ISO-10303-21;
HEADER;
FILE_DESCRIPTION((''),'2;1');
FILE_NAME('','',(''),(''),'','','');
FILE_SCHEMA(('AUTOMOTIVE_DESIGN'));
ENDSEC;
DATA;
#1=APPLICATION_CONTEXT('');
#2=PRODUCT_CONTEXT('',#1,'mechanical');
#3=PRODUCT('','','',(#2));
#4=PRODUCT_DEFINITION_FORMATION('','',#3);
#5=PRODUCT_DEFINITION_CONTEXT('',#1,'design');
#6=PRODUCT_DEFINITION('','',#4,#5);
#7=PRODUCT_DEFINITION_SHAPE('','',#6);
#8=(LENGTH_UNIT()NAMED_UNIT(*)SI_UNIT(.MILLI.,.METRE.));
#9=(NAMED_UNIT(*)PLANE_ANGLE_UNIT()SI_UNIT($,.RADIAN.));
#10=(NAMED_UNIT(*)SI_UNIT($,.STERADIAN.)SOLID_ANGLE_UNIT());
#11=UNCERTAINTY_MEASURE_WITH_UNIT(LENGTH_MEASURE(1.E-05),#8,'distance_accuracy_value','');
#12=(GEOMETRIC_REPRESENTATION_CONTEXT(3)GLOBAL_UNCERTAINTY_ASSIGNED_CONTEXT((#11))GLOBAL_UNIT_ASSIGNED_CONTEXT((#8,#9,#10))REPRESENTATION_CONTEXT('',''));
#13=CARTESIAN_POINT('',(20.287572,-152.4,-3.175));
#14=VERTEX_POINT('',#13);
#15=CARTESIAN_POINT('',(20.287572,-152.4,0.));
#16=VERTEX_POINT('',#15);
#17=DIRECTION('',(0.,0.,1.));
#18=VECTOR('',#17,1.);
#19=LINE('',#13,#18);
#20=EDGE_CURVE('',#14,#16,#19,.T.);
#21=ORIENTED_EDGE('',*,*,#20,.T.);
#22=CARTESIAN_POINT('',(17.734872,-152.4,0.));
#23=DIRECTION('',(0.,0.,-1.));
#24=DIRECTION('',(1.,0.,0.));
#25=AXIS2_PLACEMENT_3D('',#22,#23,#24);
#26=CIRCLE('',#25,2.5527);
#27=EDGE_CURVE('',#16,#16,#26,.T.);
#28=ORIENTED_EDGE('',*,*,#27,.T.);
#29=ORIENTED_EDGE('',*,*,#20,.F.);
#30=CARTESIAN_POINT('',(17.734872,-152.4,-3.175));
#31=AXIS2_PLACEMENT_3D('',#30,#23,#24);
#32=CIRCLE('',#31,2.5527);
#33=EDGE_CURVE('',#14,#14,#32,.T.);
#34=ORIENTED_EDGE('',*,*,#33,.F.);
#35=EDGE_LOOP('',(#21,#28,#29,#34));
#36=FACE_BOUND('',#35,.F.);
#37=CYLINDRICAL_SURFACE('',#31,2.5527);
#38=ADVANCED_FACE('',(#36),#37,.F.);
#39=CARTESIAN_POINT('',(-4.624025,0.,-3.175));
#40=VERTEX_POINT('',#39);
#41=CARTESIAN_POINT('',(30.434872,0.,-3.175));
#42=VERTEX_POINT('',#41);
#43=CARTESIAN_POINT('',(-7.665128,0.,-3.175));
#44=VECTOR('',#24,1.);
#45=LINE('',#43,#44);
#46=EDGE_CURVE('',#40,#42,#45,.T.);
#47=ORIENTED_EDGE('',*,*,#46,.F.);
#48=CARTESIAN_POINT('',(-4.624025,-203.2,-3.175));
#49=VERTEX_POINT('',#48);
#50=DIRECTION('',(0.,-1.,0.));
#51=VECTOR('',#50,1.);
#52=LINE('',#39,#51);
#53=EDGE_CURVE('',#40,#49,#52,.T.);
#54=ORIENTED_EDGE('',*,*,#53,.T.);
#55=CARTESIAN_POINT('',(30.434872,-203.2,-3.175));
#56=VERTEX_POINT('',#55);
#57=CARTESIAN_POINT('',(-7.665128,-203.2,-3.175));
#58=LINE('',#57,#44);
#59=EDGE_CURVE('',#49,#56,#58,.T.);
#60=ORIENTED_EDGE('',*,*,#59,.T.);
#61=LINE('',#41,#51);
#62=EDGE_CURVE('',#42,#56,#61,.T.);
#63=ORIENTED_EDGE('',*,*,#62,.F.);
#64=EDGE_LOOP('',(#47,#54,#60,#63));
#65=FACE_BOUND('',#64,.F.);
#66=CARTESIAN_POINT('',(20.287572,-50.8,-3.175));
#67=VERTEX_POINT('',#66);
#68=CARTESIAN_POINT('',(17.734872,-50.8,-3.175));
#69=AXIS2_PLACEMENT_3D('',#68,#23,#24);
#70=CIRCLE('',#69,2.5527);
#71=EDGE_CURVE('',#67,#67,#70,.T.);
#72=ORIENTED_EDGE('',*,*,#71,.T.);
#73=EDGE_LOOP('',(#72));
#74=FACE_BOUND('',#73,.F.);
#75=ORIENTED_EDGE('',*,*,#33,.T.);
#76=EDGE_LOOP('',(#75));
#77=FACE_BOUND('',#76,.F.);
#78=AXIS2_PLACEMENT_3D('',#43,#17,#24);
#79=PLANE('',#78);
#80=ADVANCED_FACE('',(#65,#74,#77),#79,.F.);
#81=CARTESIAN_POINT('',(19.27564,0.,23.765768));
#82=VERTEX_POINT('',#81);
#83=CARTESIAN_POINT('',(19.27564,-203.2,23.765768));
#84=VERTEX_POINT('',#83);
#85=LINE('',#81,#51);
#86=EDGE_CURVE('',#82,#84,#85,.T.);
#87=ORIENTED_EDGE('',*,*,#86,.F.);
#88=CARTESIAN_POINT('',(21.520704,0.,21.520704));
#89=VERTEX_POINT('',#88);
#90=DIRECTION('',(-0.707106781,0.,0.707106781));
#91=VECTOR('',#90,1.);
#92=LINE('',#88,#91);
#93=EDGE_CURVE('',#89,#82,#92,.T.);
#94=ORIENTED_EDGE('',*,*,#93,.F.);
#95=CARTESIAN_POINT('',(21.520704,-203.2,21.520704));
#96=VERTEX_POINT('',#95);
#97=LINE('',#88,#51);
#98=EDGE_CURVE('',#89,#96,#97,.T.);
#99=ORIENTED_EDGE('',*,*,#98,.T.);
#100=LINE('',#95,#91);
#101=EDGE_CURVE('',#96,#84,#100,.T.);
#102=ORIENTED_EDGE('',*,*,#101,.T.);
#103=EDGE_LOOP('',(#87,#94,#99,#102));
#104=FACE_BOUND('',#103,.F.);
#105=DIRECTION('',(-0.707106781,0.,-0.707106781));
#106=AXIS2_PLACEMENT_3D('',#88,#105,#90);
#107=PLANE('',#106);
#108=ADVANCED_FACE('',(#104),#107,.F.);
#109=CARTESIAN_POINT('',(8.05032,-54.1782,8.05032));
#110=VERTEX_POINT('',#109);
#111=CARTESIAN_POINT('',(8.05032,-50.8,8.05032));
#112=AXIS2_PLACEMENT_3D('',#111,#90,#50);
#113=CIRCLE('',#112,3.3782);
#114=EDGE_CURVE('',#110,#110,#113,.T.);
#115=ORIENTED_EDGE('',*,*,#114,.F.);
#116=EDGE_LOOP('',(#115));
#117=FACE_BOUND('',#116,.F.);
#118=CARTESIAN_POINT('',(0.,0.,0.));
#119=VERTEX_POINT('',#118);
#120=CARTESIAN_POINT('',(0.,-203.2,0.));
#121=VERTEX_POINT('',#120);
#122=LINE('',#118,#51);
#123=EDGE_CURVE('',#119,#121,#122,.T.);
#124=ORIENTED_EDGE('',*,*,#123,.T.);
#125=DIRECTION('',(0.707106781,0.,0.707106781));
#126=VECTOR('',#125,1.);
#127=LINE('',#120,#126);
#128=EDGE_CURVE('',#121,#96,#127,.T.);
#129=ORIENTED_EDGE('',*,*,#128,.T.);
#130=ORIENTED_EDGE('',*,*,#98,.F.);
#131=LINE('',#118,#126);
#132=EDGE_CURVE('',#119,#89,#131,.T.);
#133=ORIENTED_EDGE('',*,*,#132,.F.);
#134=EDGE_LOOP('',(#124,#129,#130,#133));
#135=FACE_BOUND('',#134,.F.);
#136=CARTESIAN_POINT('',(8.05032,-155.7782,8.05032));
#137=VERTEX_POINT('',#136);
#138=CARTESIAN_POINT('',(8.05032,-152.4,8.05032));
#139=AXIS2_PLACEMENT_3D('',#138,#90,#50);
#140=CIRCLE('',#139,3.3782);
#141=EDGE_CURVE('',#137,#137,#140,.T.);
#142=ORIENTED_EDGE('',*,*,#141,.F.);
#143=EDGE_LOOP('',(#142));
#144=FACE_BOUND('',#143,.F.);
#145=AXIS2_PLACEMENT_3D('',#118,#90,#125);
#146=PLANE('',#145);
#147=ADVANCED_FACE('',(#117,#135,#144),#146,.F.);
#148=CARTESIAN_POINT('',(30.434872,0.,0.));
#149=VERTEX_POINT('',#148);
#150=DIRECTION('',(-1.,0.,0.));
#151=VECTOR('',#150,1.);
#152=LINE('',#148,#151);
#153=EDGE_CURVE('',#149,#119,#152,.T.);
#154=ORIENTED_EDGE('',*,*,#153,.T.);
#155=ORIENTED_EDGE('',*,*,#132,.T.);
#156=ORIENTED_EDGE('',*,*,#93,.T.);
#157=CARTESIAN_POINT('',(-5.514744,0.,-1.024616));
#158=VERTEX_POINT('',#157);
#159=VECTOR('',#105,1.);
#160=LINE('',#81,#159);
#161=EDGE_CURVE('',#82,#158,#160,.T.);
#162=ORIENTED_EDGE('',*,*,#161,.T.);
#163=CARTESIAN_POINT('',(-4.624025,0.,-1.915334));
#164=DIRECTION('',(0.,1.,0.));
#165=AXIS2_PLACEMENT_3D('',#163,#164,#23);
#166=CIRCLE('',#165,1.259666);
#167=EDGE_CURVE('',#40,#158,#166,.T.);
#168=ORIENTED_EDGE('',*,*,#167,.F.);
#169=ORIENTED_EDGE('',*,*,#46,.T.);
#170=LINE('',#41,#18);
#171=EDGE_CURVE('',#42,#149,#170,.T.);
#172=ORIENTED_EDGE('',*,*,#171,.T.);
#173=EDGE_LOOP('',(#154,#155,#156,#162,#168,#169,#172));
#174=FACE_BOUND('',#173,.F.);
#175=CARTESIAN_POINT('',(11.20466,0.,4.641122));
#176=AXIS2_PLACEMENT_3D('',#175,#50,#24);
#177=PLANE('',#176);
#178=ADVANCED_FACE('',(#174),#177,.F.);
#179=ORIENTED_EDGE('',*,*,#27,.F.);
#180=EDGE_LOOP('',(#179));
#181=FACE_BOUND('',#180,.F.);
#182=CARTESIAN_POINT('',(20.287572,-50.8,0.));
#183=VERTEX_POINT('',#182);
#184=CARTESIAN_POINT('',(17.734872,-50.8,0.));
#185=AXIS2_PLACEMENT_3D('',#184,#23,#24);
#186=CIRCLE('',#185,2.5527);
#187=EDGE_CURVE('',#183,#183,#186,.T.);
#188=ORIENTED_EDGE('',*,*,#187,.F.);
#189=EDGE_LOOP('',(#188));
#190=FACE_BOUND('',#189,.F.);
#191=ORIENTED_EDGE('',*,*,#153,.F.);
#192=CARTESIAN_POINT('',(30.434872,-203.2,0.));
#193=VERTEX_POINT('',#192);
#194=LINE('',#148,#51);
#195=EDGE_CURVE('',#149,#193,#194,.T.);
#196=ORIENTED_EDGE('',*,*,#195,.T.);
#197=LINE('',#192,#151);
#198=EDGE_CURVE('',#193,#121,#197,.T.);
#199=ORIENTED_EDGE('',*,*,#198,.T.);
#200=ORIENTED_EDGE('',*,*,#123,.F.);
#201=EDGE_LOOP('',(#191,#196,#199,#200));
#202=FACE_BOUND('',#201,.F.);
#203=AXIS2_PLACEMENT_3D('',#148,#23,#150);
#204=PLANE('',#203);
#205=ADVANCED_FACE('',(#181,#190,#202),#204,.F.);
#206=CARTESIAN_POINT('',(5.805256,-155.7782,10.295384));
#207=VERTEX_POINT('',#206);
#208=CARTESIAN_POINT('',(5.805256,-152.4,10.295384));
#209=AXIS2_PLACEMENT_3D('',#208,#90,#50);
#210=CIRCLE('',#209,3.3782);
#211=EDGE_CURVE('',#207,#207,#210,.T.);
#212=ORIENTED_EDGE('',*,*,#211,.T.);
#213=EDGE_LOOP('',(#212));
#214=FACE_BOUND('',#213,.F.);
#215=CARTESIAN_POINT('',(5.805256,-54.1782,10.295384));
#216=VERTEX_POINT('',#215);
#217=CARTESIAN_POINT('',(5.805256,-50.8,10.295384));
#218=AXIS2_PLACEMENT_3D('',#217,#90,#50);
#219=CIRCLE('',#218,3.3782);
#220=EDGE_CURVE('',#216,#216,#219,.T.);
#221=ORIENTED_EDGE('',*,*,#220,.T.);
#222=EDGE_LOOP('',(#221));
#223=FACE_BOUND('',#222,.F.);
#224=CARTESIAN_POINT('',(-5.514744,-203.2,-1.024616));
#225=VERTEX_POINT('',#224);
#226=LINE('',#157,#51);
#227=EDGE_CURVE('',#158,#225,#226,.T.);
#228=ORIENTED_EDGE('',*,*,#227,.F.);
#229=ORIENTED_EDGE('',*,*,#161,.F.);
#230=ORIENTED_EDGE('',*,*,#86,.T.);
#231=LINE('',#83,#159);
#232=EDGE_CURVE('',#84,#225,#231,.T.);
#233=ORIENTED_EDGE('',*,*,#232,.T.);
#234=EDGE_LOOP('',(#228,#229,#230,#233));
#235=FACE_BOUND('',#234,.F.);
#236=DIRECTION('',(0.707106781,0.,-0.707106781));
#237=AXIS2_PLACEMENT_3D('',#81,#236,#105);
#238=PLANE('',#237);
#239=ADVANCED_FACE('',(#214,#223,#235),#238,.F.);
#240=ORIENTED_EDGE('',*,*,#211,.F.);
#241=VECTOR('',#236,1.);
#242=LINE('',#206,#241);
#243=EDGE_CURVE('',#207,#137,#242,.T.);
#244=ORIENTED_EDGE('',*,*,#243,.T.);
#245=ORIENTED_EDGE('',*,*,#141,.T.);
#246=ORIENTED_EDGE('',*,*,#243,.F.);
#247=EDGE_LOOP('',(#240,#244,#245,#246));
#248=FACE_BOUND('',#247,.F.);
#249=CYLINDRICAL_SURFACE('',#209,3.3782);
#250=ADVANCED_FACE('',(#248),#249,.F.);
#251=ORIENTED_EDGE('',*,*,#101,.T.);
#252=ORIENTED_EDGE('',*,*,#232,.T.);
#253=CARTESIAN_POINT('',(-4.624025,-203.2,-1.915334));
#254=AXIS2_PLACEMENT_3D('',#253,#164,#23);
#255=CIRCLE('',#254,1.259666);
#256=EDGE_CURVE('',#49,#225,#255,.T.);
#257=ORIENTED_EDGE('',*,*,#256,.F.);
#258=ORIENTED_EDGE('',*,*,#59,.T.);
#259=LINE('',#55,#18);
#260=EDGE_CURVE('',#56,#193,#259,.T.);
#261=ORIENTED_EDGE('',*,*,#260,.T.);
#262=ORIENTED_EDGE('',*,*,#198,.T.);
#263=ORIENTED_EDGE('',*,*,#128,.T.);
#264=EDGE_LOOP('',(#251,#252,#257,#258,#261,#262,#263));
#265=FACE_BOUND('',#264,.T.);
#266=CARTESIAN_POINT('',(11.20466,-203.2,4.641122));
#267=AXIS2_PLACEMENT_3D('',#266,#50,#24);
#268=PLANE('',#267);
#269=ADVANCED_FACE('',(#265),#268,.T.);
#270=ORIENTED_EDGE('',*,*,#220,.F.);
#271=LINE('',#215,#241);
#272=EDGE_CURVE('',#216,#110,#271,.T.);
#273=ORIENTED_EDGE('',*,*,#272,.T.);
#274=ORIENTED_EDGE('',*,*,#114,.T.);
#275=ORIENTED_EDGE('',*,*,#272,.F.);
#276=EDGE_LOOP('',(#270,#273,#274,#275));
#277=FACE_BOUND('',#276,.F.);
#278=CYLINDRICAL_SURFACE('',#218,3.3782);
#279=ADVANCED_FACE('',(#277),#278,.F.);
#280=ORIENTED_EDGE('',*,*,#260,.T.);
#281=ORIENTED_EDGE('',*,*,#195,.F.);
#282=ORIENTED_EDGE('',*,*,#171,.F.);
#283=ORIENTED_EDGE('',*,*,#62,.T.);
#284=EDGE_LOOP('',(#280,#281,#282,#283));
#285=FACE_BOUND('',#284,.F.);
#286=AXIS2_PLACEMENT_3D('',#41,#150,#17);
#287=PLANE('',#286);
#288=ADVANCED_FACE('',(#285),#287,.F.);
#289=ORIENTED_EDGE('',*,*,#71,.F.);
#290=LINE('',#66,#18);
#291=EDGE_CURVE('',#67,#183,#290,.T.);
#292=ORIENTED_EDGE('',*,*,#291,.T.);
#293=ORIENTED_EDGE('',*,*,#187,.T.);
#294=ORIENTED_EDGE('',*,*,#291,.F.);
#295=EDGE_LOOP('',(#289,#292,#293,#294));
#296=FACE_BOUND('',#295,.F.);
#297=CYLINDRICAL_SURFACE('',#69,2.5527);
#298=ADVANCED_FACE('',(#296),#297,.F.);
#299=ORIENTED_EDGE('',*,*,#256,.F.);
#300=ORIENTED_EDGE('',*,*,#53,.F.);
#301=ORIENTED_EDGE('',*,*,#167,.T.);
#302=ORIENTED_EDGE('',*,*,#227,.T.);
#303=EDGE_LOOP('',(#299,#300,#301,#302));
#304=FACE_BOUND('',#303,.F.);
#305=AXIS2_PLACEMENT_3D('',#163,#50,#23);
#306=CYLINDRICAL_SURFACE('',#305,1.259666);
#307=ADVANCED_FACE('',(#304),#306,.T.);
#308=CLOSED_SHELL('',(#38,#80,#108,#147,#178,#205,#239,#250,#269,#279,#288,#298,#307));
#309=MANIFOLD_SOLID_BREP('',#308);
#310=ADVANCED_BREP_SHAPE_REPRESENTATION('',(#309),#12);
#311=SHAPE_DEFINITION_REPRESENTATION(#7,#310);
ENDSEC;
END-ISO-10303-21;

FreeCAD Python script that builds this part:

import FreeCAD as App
import Part
import Sketcher

V = App.Vector
Q = App.Units.Quantity


def edges_at(feature, points):
    """Names of the edges that pass closest to the given points."""
    edges = feature.Shape.Edges
    near = lambda p: min(range(len(edges)), key=lambda i: edges[i].distToShape(Part.Vertex(*p))[0])
    return sorted({f"Edge{near(p) + 1}" for p in points})

doc = App.newDocument("Part")
params = doc.addObject("Spreadsheet::Sheet", "Params")
for row, (alias, value) in enumerate([
    ("sketch1_width", "1.5 in"),
    ("sketch1_length", "1.5 in"),
    ("sketch1_height", "0.125 in"),
    ("sketch1_length2", "0.125 in"),
    ("pad1_length", "8 in"),
    ("sketch2_diameter", "0.266 in"),
    ("pocket1_length", "0.125 in"),
    ("sketch3_diameter", "0.201 in"),
    ("pocket2_length", "0.125 in"),
    ("fillet_radius", "1.259666 mm"),
], start=1):
    params.set(f"A{row}", alias)
    params.set(f"B{row}", "=" + value)
    params.setAlias(f"B{row}", alias)

body = doc.addObject("PartDesign::Body", "Body")

# Sketch on XZ plane
sketch1 = body.newObject("Sketcher::SketchObject", "Sketch")
sketch1.AttachmentSupport = (doc.getObject("XZ_Plane"), [""])
sketch1.MapMode = "FlatFace"
sketch1.addGeometry(Part.LineSegment(V(30.4, 0, 0), V(0, 0, 0)), False)
sketch1.addGeometry(Part.LineSegment(V(0, 0, 0), V(21.5, 21.5, 0)), False)
sketch1.addGeometry(Part.LineSegment(V(21.5, 21.5, 0), V(19.3, 23.8, 0)), False)
sketch1.addGeometry(Part.LineSegment(V(19.3, 23.8, 0), V(-7.7, -3.2, 0)), False)
sketch1.addGeometry(Part.LineSegment(V(-7.7, -3.2, 0), V(30.4, -3.2, 0)), False)
sketch1.addGeometry(Part.LineSegment(V(30.4, -3.2, 0), V(30.4, 0, 0)), False)
sketch1.addConstraint(Sketcher.Constraint("Coincident", 0, 2, 1, 1))
sketch1.addConstraint(Sketcher.Constraint("Coincident", 1, 2, 2, 1))
sketch1.addConstraint(Sketcher.Constraint("Coincident", 2, 2, 3, 1))
sketch1.addConstraint(Sketcher.Constraint("Coincident", 3, 2, 4, 1))
sketch1.addConstraint(Sketcher.Constraint("Coincident", 4, 2, 5, 1))
sketch1.addConstraint(Sketcher.Constraint("Coincident", 5, 2, 0, 1))
sketch1.addConstraint(Sketcher.Constraint("Horizontal", 0))
sketch1.addConstraint(Sketcher.Constraint("Horizontal", 4))
sketch1.addConstraint(Sketcher.Constraint("Vertical", 5))
sketch1.addConstraint(Sketcher.Constraint("Coincident", 0, 2, -1, 1))
sketch1.addConstraint(Sketcher.Constraint("Perpendicular", 1, 2))
sketch1.addConstraint(Sketcher.Constraint("Perpendicular", 2, 3))
sketch1.addConstraint(Sketcher.Constraint("DistanceX", 4, 1, 4, 2, Q("1.5 in")))
sketch1.addConstraint(Sketcher.Constraint("Angle", 1, Q("45 deg")))
sketch1.addConstraint(Sketcher.Constraint("Distance", 3, Q("1.5 in")))
sketch1.addConstraint(Sketcher.Constraint("DistanceY", 5, 1, 5, 2, Q("0.125 in")))
sketch1.addConstraint(Sketcher.Constraint("Distance", 2, Q("0.125 in")))
sketch1.setExpression("Constraints[12]", "Params.sketch1_width")
sketch1.setExpression("Constraints[14]", "Params.sketch1_length")
sketch1.setExpression("Constraints[15]", "Params.sketch1_height")
sketch1.setExpression("Constraints[16]", "Params.sketch1_length2")
pad1 = body.newObject("PartDesign::Pad", "Pad")
pad1.Profile = sketch1
pad1.setExpression("Length", "Params.pad1_length")

# Sketch on an angled plane
sketch2 = body.newObject("Sketcher::SketchObject", "Sketch001")
sketch2.Placement = App.Placement(V(-2.245064, 0, 2.245064), App.Rotation(V(0, -1, 0), V(0.707106781, 0, 0.707106781), V(-0.707106781, 0, 0.707106781), "ZXY"))
sketch2.addGeometry(Part.Circle(V(50.8, 11.4, 0), V(0, 0, 1), 3.4), False)
sketch2.addGeometry(Part.Circle(V(152.4, 11.4, 0), V(0, 0, 1), 3.4), False)
sketch2.addConstraint(Sketcher.Constraint("Equal", 0, 1))
sketch2.addConstraint(Sketcher.Constraint("Horizontal", 0, 3, 1, 3))
sketch2.addConstraint(Sketcher.Constraint("Diameter", 0, Q("0.266 in")))
sketch2.addConstraint(Sketcher.Constraint("DistanceX", -1, 1, 0, 3, Q("2 in")))
sketch2.addConstraint(Sketcher.Constraint("DistanceX", -1, 1, 1, 3, Q("6 in")))
sketch2.addConstraint(Sketcher.Constraint("DistanceY", -1, 1, 0, 3, 11.384872))
sketch2.setExpression("Constraints[2]", "Params.sketch2_diameter")
pocket1 = body.newObject("PartDesign::Pocket", "Pocket")
pocket1.Profile = sketch2
pocket1.setExpression("Length", "Params.pocket1_length")

# Sketch on XY plane
sketch3 = body.newObject("Sketcher::SketchObject", "Sketch002")
sketch3.AttachmentSupport = (doc.getObject("XY_Plane"), [""])
sketch3.MapMode = "FlatFace"
sketch3.AttachmentOffset = App.Placement(V(0, 0, -0.125 * 25.4), App.Rotation())
sketch3.addGeometry(Part.Circle(V(17.7, -152.4, 0), V(0, 0, 1), 2.6), False)
sketch3.addGeometry(Part.Circle(V(17.7, -50.8, 0), V(0, 0, 1), 2.6), False)
sketch3.addConstraint(Sketcher.Constraint("Equal", 0, 1))
sketch3.addConstraint(Sketcher.Constraint("Vertical", 0, 3, 1, 3))
sketch3.addConstraint(Sketcher.Constraint("Diameter", 0, Q("0.201 in")))
sketch3.addConstraint(Sketcher.Constraint("DistanceY", 0, 3, -1, 1, Q("6 in")))
sketch3.addConstraint(Sketcher.Constraint("DistanceY", 1, 3, -1, 1, Q("2 in")))
sketch3.addConstraint(Sketcher.Constraint("DistanceX", -1, 1, 0, 3, 17.734872))
sketch3.setExpression("Constraints[2]", "Params.sketch3_diameter")
pocket2 = body.newObject("PartDesign::Pocket", "Pocket001")
pocket2.Profile = sketch3
pocket2.setExpression("Length", "Params.pocket2_length")
pocket2.Reversed = True
doc.recompute()

fillet = body.newObject("PartDesign::Fillet", "Fillet")
fillet.Base = (pocket2, edges_at(pocket2, [(-7.665, -101.6, -3.175)]))
fillet.setExpression("Radius", "Params.fillet_radius")

doc.recompute()
